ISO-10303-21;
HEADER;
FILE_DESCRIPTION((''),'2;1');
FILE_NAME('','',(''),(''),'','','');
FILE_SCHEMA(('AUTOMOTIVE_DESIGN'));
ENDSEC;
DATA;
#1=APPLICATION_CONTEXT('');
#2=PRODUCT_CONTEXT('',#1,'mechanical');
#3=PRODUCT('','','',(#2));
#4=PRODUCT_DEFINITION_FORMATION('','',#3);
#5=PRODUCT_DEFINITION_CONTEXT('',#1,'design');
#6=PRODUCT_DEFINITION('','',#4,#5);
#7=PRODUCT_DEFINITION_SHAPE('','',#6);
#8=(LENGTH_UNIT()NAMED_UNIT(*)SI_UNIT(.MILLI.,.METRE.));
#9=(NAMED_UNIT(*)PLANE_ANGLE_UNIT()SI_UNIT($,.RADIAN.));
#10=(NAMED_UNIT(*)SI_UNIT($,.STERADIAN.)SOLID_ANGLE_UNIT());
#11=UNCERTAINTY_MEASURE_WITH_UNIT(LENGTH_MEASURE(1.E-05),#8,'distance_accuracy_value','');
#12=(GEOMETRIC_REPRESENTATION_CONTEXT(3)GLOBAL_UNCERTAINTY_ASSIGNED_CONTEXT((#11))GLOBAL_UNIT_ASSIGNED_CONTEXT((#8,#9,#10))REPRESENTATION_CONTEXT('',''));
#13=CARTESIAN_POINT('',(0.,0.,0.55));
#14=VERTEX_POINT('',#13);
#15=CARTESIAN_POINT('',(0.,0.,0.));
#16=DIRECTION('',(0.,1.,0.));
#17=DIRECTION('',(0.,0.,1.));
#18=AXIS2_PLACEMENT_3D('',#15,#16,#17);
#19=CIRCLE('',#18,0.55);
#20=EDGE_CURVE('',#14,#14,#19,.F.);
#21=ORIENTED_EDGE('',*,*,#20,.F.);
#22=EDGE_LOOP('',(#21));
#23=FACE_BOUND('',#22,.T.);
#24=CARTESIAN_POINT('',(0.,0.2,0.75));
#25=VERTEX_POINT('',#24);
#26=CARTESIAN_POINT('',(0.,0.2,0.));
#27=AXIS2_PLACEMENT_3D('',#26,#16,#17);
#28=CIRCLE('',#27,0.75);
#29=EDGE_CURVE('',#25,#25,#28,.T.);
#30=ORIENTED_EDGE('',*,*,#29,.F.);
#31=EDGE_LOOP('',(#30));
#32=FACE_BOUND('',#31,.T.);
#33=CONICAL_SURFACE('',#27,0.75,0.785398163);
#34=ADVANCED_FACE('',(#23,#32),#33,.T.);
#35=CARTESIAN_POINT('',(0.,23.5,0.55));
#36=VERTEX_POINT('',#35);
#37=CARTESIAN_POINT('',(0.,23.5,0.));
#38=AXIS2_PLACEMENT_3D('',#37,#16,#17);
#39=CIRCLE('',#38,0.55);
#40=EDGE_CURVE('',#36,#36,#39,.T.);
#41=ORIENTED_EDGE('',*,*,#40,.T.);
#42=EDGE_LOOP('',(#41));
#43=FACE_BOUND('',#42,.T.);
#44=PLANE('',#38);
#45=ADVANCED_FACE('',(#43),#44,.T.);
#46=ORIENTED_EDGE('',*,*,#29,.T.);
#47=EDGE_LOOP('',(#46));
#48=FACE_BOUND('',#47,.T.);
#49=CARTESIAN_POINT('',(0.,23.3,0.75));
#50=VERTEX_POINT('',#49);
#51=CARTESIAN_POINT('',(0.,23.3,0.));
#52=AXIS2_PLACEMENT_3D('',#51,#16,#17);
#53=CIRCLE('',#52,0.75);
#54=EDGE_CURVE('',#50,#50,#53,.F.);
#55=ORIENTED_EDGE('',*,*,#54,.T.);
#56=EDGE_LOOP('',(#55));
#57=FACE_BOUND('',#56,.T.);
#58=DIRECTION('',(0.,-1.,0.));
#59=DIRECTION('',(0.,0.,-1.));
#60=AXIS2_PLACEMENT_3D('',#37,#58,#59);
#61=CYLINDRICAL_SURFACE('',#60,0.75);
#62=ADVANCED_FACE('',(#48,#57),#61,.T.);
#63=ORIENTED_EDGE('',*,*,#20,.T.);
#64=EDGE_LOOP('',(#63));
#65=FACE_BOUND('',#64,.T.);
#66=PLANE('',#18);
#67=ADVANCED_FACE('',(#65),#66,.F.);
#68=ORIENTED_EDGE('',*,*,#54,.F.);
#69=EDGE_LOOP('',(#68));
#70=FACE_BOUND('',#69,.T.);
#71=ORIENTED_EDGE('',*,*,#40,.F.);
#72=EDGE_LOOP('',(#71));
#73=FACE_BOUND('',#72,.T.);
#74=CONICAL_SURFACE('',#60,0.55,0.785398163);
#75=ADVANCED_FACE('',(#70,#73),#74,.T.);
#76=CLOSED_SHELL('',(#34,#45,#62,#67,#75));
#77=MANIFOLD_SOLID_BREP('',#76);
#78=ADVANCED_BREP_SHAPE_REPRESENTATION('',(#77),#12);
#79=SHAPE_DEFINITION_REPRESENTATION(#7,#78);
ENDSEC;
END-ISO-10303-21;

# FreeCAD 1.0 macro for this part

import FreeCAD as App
import Part
import Sketcher
Q = App.Units.Quantity


def edges_at(feature, points):
    """Names of the edges that pass closest to the given points."""
    edges = feature.Shape.Edges
    near = lambda p: min(range(len(edges)), key=lambda i: edges[i].distToShape(Part.Vertex(*p))[0])
    return sorted({f"Edge{near(p) + 1}" for p in points})

doc = App.newDocument("Part")
params = doc.addObject("Spreadsheet::Sheet", "Params")
for row, (alias, value) in enumerate([
    ("sketch1_diameter", "1.5 mm"),
    ("pad1_length", "23.5 mm"),
    ("chamfer_size", "0.2 mm"),
], start=1):
    params.set(f"A{row}", alias)
    params.set(f"B{row}", "=" + value)
    params.setAlias(f"B{row}", alias)

body = doc.addObject("PartDesign::Body", "Body")

# Sketch on XZ plane
sketch1 = body.newObject("Sketcher::SketchObject", "Sketch")
sketch1.AttachmentSupport = (doc.getObject("XZ_Plane"), [""])
sketch1.MapMode = "FlatFace"
sketch1.addGeometry(Part.Circle(App.Vector(0, 0, 0), App.Vector(0, 0, 1), 0.8), False)
sketch1.addConstraint([
    Sketcher.Constraint("Coincident", 0, 3, -1, 1),
    Sketcher.Constraint("Diameter", 0, Q("1.5 mm")),
])
sketch1.setExpression("Constraints[1]", "Params.sketch1_diameter")
pad1 = body.newObject("PartDesign::Pad", "Pad")
pad1.Profile = sketch1
pad1.setExpression("Length", "Params.pad1_length")
pad1.Reversed = True
doc.recompute()

chamfer = body.newObject("PartDesign::Chamfer", "Chamfer")
chamfer.Base = (pad1, edges_at(pad1, [(0, 0, -0.75), (0, 23.5, -0.75)]))
chamfer.setExpression("Size", "Params.chamfer_size")

doc.recompute()
